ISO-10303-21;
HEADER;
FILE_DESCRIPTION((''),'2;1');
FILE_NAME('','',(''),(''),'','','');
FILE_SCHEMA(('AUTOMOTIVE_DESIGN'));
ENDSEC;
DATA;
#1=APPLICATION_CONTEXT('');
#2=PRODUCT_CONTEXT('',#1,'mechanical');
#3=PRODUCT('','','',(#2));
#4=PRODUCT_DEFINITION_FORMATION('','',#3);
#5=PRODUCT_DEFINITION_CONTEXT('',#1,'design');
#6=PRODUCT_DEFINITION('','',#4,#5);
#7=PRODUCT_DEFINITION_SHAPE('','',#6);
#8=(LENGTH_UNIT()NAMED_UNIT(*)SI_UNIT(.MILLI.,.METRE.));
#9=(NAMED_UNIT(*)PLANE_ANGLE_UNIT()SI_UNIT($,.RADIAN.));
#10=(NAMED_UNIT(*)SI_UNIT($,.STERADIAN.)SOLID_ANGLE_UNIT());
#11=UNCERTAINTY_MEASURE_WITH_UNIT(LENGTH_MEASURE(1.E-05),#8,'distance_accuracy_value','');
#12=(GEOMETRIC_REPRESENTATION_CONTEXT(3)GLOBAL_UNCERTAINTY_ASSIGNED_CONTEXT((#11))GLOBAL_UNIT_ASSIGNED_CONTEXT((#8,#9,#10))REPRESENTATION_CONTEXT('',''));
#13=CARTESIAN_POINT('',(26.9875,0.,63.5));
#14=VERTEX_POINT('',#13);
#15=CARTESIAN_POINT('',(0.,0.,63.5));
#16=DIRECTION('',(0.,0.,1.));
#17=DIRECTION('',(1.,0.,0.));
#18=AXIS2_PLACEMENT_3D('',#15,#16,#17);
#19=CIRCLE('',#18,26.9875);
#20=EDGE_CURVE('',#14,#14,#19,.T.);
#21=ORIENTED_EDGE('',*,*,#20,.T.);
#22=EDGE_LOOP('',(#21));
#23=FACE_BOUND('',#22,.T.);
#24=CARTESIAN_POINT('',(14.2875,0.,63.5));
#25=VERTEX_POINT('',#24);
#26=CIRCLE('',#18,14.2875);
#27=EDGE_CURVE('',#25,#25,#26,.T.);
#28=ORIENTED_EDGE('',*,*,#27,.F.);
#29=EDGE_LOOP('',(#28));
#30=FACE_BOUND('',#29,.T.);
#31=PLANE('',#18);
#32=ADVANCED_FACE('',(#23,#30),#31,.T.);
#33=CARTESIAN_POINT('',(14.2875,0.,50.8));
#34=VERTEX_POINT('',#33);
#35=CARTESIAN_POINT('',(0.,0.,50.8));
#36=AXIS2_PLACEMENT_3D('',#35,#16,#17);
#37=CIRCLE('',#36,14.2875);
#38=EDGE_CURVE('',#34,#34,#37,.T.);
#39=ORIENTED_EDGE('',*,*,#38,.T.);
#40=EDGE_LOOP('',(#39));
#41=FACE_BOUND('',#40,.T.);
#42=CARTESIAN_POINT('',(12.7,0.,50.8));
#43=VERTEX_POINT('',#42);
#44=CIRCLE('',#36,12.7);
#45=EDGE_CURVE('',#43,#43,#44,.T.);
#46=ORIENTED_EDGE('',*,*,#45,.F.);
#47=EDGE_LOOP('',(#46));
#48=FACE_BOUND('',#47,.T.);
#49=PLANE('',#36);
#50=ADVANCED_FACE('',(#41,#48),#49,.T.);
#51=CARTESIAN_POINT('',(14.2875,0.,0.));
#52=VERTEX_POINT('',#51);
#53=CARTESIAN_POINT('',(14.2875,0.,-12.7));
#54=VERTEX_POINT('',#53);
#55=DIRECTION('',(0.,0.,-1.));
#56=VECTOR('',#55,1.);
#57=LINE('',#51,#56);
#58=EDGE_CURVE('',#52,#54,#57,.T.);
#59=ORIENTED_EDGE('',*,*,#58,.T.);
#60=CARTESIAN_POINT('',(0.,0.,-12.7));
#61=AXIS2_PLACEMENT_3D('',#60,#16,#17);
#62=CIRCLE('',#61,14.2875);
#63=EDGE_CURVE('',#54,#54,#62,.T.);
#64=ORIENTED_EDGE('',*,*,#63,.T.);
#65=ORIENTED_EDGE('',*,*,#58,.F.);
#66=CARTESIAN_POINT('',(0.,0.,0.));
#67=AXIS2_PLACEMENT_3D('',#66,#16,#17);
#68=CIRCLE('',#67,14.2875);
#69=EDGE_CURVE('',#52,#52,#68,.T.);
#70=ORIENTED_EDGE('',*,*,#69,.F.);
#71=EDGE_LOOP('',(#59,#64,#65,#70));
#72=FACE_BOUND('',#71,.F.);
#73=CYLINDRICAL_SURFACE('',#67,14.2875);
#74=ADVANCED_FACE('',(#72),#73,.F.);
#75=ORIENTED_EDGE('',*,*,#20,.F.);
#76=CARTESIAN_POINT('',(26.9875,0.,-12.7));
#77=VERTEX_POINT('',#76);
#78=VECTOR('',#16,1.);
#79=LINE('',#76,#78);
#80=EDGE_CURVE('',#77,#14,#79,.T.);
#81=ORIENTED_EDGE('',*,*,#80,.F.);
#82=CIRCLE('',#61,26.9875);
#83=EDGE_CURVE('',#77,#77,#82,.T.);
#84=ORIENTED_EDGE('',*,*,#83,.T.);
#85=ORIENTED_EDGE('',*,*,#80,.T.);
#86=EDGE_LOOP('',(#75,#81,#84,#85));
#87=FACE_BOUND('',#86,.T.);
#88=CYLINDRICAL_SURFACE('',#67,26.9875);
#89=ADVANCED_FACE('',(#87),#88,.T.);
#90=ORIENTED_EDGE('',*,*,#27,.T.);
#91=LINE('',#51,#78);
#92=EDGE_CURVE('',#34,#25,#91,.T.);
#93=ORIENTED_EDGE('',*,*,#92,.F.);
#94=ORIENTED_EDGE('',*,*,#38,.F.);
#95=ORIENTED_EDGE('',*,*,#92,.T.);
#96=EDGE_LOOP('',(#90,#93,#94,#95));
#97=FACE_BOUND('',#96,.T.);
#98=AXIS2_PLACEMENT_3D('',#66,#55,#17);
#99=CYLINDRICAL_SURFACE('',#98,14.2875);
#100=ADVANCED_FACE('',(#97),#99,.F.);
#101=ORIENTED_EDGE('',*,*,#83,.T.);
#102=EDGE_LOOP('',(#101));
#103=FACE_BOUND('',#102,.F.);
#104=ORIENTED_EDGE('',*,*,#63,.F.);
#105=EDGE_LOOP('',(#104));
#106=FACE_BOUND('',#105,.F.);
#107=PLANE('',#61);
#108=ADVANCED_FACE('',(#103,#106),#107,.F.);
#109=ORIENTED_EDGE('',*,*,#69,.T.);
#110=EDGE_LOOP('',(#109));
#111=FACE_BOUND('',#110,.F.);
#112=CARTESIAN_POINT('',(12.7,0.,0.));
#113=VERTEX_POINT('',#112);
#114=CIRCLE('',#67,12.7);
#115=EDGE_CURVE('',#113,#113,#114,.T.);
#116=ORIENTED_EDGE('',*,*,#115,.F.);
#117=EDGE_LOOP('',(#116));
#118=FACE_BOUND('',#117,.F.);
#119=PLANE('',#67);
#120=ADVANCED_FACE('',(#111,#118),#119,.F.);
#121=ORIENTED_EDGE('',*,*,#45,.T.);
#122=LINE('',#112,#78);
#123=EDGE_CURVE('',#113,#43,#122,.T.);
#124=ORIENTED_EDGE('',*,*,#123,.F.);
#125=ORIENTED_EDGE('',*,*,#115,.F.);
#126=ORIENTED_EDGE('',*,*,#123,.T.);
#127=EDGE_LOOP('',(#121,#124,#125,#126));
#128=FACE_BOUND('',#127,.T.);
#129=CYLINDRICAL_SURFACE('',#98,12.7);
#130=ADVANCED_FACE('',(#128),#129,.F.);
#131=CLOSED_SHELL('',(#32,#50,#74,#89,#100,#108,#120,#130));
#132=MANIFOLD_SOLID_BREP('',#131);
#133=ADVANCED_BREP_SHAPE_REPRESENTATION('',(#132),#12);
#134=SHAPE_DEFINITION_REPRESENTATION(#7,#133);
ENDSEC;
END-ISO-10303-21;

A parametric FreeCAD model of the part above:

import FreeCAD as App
import Part
import Sketcher
Q = App.Units.Quantity

doc = App.newDocument("Part")
body = doc.addObject("PartDesign::Body", "Body")

sketch1 = doc.addObject("Sketcher::SketchObject", "Sketch")
body.addObject(sketch1)
sketch1.AttachmentSupport = (doc.XY_Plane, [""])
sketch1.MapMode = "FlatFace"
sketch1.addGeometry(Part.Circle(App.Vector(0, 0, 0), App.Vector(0, 0, 1), 14), False)
sketch1.addGeometry(Part.Circle(App.Vector(0, 0, 0), App.Vector(0, 0, 1), 13), False)
sketch1.addConstraint(Sketcher.Constraint("Coincident", 0, 3, -1, 1))
sketch1.addConstraint(Sketcher.Constraint("Coincident", 1, 3, -1, 1))
sketch1.addConstraint(Sketcher.Constraint("Diameter", 1, Q("1 in")))
sketch1.addConstraint(Sketcher.Constraint("Diameter", 0, Q("1.125 in")))
pad1 = doc.addObject("PartDesign::Pad", "Pad")
body.addObject(pad1)
pad1.Profile = sketch1
pad1.Length = Q("2 in")

sketch2 = doc.addObject("Sketcher::SketchObject", "Sketch001")
body.addObject(sketch2)
sketch2.AttachmentSupport = (doc.XY_Plane, [""])
sketch2.MapMode = "FlatFace"
sketch2.addGeometry(Part.Circle(App.Vector(0, 0, 0), App.Vector(0, 0, 1), 27), False)
sketch2.addGeometry(Part.Circle(App.Vector(0, 0, 0), App.Vector(0, 0, 1), 14), False)
sketch2.addConstraint(Sketcher.Constraint("Coincident", 0, 3, -1, 1))
sketch2.addConstraint(Sketcher.Constraint("Coincident", 1, 3, -1, 1))
sketch2.addConstraint(Sketcher.Constraint("Diameter", 0, Q("2.125 in")))
sketch2.addConstraint(Sketcher.Constraint("Diameter", 1, Q("1.125 in")))
pad2 = doc.addObject("PartDesign::Pad", "Pad001")
body.addObject(pad2)
pad2.Profile = sketch2
pad2.Type = "TwoLengths"
pad2.Length = Q("2.5 in")
pad2.Length2 = Q("0.5 in")

doc.recompute()
